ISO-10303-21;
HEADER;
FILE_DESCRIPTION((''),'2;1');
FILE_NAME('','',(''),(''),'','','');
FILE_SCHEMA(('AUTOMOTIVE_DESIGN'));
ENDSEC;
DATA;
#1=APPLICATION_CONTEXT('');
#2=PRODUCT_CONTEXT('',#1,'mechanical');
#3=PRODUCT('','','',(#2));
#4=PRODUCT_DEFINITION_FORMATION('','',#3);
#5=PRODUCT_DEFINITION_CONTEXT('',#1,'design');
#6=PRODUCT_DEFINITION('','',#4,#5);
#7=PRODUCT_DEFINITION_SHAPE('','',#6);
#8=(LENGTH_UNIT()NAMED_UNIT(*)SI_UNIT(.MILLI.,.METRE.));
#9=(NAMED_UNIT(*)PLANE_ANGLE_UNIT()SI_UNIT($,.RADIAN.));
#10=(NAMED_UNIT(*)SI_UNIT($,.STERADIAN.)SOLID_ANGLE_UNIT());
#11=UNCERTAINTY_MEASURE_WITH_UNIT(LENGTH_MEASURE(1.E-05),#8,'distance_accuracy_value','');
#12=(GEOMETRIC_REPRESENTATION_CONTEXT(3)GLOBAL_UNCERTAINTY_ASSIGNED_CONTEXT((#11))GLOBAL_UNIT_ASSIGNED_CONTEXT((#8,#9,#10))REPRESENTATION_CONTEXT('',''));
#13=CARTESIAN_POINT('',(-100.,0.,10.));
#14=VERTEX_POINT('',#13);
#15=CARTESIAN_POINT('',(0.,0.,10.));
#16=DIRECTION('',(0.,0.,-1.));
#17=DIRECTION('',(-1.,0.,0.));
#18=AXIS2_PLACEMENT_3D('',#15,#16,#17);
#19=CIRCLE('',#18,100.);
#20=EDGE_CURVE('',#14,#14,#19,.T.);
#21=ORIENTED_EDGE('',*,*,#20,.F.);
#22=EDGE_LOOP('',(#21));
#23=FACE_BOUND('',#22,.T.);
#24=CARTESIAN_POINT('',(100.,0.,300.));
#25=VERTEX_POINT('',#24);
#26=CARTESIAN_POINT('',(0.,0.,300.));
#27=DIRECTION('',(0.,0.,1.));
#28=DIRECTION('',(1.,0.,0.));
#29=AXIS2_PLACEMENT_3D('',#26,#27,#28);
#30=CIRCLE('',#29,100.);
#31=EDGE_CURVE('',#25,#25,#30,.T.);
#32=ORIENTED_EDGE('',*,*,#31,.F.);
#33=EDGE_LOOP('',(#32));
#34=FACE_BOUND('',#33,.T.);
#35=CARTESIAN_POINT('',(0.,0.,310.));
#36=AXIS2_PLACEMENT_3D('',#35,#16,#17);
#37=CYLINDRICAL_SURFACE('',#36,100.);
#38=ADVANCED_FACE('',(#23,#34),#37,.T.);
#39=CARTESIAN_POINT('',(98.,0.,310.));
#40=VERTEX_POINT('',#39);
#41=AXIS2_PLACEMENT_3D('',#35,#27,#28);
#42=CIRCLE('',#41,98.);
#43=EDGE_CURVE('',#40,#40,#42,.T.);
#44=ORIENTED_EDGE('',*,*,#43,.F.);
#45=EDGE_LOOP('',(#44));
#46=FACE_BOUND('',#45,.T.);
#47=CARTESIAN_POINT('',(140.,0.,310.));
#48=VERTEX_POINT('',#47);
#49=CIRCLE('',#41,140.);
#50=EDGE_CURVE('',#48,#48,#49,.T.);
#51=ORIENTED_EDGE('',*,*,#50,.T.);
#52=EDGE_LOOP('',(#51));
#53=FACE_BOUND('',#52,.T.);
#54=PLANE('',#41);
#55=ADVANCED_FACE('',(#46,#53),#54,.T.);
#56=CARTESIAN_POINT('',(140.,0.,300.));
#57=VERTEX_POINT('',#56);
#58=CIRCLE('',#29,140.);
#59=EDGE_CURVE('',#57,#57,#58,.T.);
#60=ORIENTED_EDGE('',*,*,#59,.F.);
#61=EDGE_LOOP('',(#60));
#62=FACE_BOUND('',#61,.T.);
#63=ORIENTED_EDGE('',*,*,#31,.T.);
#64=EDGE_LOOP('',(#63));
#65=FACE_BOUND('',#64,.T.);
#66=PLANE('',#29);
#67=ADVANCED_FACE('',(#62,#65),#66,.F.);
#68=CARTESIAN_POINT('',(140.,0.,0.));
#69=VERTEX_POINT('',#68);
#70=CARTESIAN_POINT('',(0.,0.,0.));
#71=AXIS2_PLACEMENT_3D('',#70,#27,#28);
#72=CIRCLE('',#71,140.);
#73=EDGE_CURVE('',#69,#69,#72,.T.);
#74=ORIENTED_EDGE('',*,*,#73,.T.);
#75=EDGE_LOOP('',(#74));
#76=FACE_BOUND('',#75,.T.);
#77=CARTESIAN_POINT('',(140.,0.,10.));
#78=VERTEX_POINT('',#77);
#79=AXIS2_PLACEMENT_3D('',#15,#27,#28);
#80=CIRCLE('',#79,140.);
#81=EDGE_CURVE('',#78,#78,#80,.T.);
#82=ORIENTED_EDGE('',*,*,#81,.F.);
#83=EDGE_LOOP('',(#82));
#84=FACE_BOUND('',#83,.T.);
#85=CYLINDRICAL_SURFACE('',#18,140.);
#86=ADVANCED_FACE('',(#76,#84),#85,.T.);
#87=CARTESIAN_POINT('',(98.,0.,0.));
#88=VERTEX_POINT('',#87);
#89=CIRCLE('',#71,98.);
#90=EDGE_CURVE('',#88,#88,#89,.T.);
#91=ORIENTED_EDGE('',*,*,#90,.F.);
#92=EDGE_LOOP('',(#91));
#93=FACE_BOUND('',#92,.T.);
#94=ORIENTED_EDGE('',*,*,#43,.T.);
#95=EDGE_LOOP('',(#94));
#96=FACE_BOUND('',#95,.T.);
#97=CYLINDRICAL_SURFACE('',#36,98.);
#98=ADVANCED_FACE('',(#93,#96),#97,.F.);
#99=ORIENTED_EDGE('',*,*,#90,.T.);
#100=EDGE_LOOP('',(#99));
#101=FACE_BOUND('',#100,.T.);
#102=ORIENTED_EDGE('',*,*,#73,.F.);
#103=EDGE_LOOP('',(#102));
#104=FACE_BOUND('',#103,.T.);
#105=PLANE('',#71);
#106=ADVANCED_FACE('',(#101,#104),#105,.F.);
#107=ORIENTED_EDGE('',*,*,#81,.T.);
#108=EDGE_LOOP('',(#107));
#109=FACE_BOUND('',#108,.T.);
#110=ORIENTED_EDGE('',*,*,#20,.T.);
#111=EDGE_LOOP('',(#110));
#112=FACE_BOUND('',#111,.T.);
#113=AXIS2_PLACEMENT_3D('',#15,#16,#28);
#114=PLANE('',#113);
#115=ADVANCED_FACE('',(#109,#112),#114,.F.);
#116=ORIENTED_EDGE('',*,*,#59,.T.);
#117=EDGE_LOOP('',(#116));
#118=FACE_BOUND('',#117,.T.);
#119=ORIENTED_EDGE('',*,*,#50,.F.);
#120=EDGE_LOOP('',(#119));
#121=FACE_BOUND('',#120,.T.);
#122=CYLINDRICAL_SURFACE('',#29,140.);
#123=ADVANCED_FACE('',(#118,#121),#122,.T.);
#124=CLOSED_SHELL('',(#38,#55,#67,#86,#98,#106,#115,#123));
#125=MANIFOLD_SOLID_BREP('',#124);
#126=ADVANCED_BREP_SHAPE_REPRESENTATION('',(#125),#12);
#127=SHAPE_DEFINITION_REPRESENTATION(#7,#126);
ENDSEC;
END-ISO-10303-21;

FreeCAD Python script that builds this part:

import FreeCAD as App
import Part
import Sketcher
from FreeCAD import Vector

doc = App.newDocument("Part")
body = doc.addObject("PartDesign::Body", "Body")

# Sketch on XY plane
sketch1 = doc.addObject("Sketcher::SketchObject", "Sketch")
body.addObject(sketch1)
sketch1.AttachmentSupport = (doc.XY_Plane, [""])
sketch1.MapMode = "FlatFace"
sketch1.addGeometry([
    Part.Circle(Vector(0, 0, 0), Vector(0, 0, 1), 100),
    Part.Circle(Vector(0, 0, 0), Vector(0, 0, 1), 98),
], False)
sketch1.addConstraint([
    Sketcher.Constraint("Coincident", 0, 3, -1, 1),
    Sketcher.Constraint("Coincident", 1, 3, -1, 1),
    Sketcher.Constraint("Diameter", 0, 200.0),
    Sketcher.Constraint("Diameter", 1, 196.0),
])
pad1 = doc.addObject("PartDesign::Pad", "Pad")
body.addObject(pad1)
pad1.Profile = sketch1
pad1.Length = 310

# Sketch on XY plane
sketch2 = doc.addObject("Sketcher::SketchObject", "Sketch001")
body.addObject(sketch2)
sketch2.AttachmentSupport = (doc.XY_Plane, [""])
sketch2.MapMode = "FlatFace"
sketch2.AttachmentOffset = App.Placement(Vector(0, 0, 310), App.Rotation())
sketch2.addGeometry([
    Part.Circle(Vector(0, 0, 0), Vector(0, 0, 1), 140),
    Part.Circle(Vector(0, 0, 0), Vector(0, 0, 1), 100),
], False)
sketch2.addConstraint([
    Sketcher.Constraint("Coincident", 0, 3, -1, 1),
    Sketcher.Constraint("Coincident", 1, 3, -1, 1),
    Sketcher.Constraint("Diameter", 0, 280.0),
    Sketcher.Constraint("Diameter", 1, 200.0),
])
pad2 = doc.addObject("PartDesign::Pad", "Pad001")
body.addObject(pad2)
pad2.Profile = sketch2
pad2.Length = 10
pad2.Reversed = True
doc.recompute()

datumplane = doc.addObject("PartDesign::Plane", "DatumPlane")
body.addObject(datumplane)
datumplane.AttachmentSupport = (doc.XY_Plane, [""])
datumplane.MapMode = "FlatFace"
datumplane.AttachmentOffset = App.Placement(Vector(0, 0, 155), App.Rotation())
mirrored = doc.addObject("PartDesign::Mirrored", "Mirrored")
body.addObject(mirrored)
mirrored.Originals = [pad2]
mirrored.MirrorPlane = (datumplane, [""])
body.Tip = mirrored

doc.recompute()
